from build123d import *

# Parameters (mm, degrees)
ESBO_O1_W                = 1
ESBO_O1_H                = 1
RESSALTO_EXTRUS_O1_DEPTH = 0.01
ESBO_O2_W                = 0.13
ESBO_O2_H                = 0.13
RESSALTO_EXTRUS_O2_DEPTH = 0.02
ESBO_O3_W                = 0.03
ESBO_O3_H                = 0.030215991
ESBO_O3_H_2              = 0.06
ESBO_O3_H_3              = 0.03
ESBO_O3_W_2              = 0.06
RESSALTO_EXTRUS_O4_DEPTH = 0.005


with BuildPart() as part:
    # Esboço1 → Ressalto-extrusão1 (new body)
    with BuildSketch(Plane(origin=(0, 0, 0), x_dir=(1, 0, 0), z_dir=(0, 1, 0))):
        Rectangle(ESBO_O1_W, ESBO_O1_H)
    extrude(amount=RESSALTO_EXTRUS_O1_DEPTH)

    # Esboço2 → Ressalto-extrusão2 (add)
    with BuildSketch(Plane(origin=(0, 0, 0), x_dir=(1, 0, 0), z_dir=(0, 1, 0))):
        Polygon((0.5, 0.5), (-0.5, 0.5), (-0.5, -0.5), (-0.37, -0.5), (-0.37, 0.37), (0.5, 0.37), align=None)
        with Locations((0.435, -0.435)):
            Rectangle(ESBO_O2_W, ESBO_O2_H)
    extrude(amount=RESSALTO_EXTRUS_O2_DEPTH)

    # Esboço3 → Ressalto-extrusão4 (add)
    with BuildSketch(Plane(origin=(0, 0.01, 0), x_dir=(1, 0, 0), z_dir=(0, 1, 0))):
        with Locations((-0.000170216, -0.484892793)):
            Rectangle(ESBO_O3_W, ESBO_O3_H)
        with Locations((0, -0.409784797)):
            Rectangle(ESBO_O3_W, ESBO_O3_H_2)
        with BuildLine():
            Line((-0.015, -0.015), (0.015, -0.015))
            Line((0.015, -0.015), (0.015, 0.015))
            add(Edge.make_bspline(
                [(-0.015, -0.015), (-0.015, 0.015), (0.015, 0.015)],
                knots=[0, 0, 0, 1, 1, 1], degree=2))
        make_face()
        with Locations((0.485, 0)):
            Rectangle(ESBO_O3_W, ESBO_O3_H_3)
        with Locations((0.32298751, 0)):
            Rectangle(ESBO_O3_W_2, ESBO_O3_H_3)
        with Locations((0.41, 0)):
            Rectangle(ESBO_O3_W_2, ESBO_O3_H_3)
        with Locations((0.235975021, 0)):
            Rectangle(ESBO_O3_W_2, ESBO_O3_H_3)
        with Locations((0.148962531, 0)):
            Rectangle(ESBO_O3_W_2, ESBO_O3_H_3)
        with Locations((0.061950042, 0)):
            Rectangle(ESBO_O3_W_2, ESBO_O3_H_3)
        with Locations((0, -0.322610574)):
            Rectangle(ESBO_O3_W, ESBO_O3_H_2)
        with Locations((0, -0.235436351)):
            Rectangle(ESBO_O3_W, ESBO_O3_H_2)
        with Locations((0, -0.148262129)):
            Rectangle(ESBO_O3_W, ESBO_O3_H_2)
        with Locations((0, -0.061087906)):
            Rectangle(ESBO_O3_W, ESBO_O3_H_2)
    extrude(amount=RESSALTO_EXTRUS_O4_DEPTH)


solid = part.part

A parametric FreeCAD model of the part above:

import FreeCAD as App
import Part
import Sketcher

V = App.Vector
Q = App.Units.Quantity


def add_polygon(sketch, points):
    """Adds a closed chain of lines whose ends are joined by coincident constraints."""
    first, n = sketch.GeometryCount, len(points)
    for a, b in zip(points, points[1:] + points[:1]):
        sketch.addGeometry(Part.LineSegment(App.Vector(*a, 0), App.Vector(*b, 0)), False)
    for i in range(n):
        sketch.addConstraint(Sketcher.Constraint("Coincident", first + i, 2, first + (i + 1) % n, 1))

doc = App.newDocument("Part")
body = doc.addObject("PartDesign::Body", "Body")

# Sketch on XZ plane
sketch1 = body.newObject("Sketcher::SketchObject", "Sketch")
sketch1.AttachmentSupport = (doc.getObject("XZ_Plane"), [""])
sketch1.MapMode = "FlatFace"
add_polygon(sketch1, [(-0.5, -0.5), (-0.5, 0.5), (0.5, 0.5), (0.5, -0.5)])  # lines 0-3
sketch1.addConstraint(Sketcher.Constraint("Vertical", 0))
sketch1.addConstraint(Sketcher.Constraint("Horizontal", 1))
sketch1.addConstraint(Sketcher.Constraint("Vertical", 2))
sketch1.addConstraint(Sketcher.Constraint("Horizontal", 3))
sketch1.addConstraint(Sketcher.Constraint("Symmetric", 0, 2, 2, 2, -1, 1))
sketch1.addConstraint(Sketcher.Constraint("Equal", 3, 0))
sketch1.addConstraint(Sketcher.Constraint("DistanceX", 1, 1, 1, 2, Q("1 mm")))
pad1 = body.newObject("PartDesign::Pad", "Pad")
pad1.Profile = sketch1
pad1.Length = 0.01
pad1.Reversed = True

# Sketch on XZ plane
sketch2 = body.newObject("Sketcher::SketchObject", "Sketch001")
sketch2.AttachmentSupport = (doc.getObject("XZ_Plane"), [""])
sketch2.MapMode = "FlatFace"
add_polygon(sketch2, [(0.5, -0.5), (-0.5, -0.5), (-0.5, 0.5), (-0.37, 0.5), (-0.37, -0.37), (0.5, -0.37)])  # lines 0-5
add_polygon(sketch2, [(0.37, 0.37), (0.37, 0.5), (0.5, 0.5), (0.5, 0.37)])  # lines 6-9
sketch2.addConstraint(Sketcher.Constraint("Horizontal", 0))
sketch2.addConstraint(Sketcher.Constraint("Vertical", 1))
sketch2.addConstraint(Sketcher.Constraint("Horizontal", 2))
sketch2.addConstraint(Sketcher.Constraint("Vertical", 3))
sketch2.addConstraint(Sketcher.Constraint("Horizontal", 4))
sketch2.addConstraint(Sketcher.Constraint("Vertical", 5))
sketch2.addConstraint(Sketcher.Constraint("Vertical", 6))
sketch2.addConstraint(Sketcher.Constraint("Horizontal", 7))
sketch2.addConstraint(Sketcher.Constraint("Vertical", 8))
sketch2.addConstraint(Sketcher.Constraint("Horizontal", 9))
sketch2.addConstraint(Sketcher.Constraint("Symmetric", 1, 2, 5, 2, -1, 1))
sketch2.addConstraint(Sketcher.Constraint("Symmetric", 0, 2, 7, 2, -1, 1))
sketch2.addConstraint(Sketcher.Constraint("Symmetric", 3, 2, 9, 2, -1, 1))
sketch2.addConstraint(Sketcher.Constraint("Equal", 0, 1))
sketch2.addConstraint(Sketcher.Constraint("Equal", 4, 3))
sketch2.addConstraint(Sketcher.Constraint("DistanceX", 0, 2, 0, 1, Q("1 mm")))
sketch2.addConstraint(Sketcher.Constraint("DistanceX", 2, 1, 2, 2, Q("0.13 mm")))
pad2 = body.newObject("PartDesign::Pad", "Pad001")
pad2.Profile = sketch2
pad2.Length = 0.02
pad2.Reversed = True

# Sketch on XZ plane
sketch3 = body.newObject("Sketcher::SketchObject", "Sketch002")
sketch3.AttachmentSupport = (doc.getObject("XZ_Plane"), [""])
sketch3.MapMode = "FlatFace"
sketch3.AttachmentOffset = App.Placement(V(0, 0, -0.01), App.Rotation())
add_polygon(sketch3, [(-0.01517, 0.469785), (-0.01517, 0.500001), (0.01483, 0.500001), (0.01483, 0.469785)])  # lines 0-3
add_polygon(sketch3, [(-0.015, 0.379785), (-0.015, 0.439785), (0.015, 0.439785), (0.015, 0.379785)])  # lines 4-7
sketch3.addGeometry(Part.LineSegment(V(-0.015, 0.015, 0), V(0.015, 0.015, 0)), False)  # 8
sketch3.addGeometry(Part.LineSegment(V(0.015, 0.015, 0), V(0.015, -0.015, 0)), False)  # 9
sketch3.addGeometry(Part.BSplineCurve([V(-0.015, 0.015, 0), V(-0.015, -0.015, 0), V(0.015, -0.015, 0)], [3, 3], [0, 1], False, 2, [1, 1, 1], False), False)  # 10
add_polygon(sketch3, [(0.47, -0.015), (0.47, 0.015), (0.5, 0.015), (0.5, -0.015)])  # lines 11-14
add_polygon(sketch3, [(0.292988, -0.015), (0.292988, 0.015), (0.352988, 0.015), (0.352988, -0.015)])  # lines 15-18
add_polygon(sketch3, [(0.38, -0.015), (0.38, 0.015), (0.44, 0.015), (0.44, -0.015)])  # lines 19-22
add_polygon(sketch3, [(0.205975, -0.015), (0.205975, 0.015), (0.265975, 0.015), (0.265975, -0.015)])  # lines 23-26
add_polygon(sketch3, [(0.118963, -0.015), (0.118963, 0.015), (0.178963, 0.015), (0.178963, -0.015)])  # lines 27-30
add_polygon(sketch3, [(0.03195, -0.015), (0.03195, 0.015), (0.09195, 0.015), (0.09195, -0.015)])  # lines 31-34
add_polygon(sketch3, [(-0.015, 0.292611), (-0.015, 0.352611), (0.015, 0.352611), (0.015, 0.292611)])  # lines 35-38
add_polygon(sketch3, [(-0.015, 0.205436), (-0.015, 0.265436), (0.015, 0.265436), (0.015, 0.205436)])  # lines 39-42
add_polygon(sketch3, [(-0.015, 0.118262), (-0.015, 0.178262), (0.015, 0.178262), (0.015, 0.118262)])  # lines 43-46
add_polygon(sketch3, [(-0.015, 0.031088), (-0.015, 0.091088), (0.015, 0.091088), (0.015, 0.031088)])  # lines 47-50
sketch3.addConstraint(Sketcher.Constraint("Block", 10))
sketch3.addConstraint(Sketcher.Constraint("Coincident", 8, 2, 9, 1))
sketch3.addConstraint(Sketcher.Constraint("Coincident", 9, 2, 10, 2))
sketch3.addConstraint(Sketcher.Constraint("Coincident", 10, 1, 8, 1))
sketch3.addConstraint(Sketcher.Constraint("Vertical", 0))
sketch3.addConstraint(Sketcher.Constraint("Horizontal", 1))
sketch3.addConstraint(Sketcher.Constraint("Vertical", 2))
sketch3.addConstraint(Sketcher.Constraint("Horizontal", 3))
sketch3.addConstraint(Sketcher.Constraint("Vertical", 4))
sketch3.addConstraint(Sketcher.Constraint("Horizontal", 5))
sketch3.addConstraint(Sketcher.Constraint("Vertical", 6))
sketch3.addConstraint(Sketcher.Constraint("Horizontal", 7))
sketch3.addConstraint(Sketcher.Constraint("Horizontal", 8))
sketch3.addConstraint(Sketcher.Constraint("Vertical", 9))
sketch3.addConstraint(Sketcher.Constraint("Vertical", 11))
sketch3.addConstraint(Sketcher.Constraint("Horizontal", 12))
sketch3.addConstraint(Sketcher.Constraint("Vertical", 13))
sketch3.addConstraint(Sketcher.Constraint("Horizontal", 14))
sketch3.addConstraint(Sketcher.Constraint("Vertical", 15))
sketch3.addConstraint(Sketcher.Constraint("Horizontal", 16))
sketch3.addConstraint(Sketcher.Constraint("Vertical", 17))
sketch3.addConstraint(Sketcher.Constraint("Horizontal", 18))
sketch3.addConstraint(Sketcher.Constraint("Vertical", 19))
sketch3.addConstraint(Sketcher.Constraint("Horizontal", 20))
sketch3.addConstraint(Sketcher.Constraint("Vertical", 21))
sketch3.addConstraint(Sketcher.Constraint("Horizontal", 22))
sketch3.addConstraint(Sketcher.Constraint("Vertical", 23))
sketch3.addConstraint(Sketcher.Constraint("Horizontal", 24))
sketch3.addConstraint(Sketcher.Constraint("Vertical", 25))
sketch3.addConstraint(Sketcher.Constraint("Horizontal", 26))
sketch3.addConstraint(Sketcher.Constraint("Vertical", 27))
sketch3.addConstraint(Sketcher.Constraint("Horizontal", 28))
sketch3.addConstraint(Sketcher.Constraint("Vertical", 29))
sketch3.addConstraint(Sketcher.Constraint("Horizontal", 30))
sketch3.addConstraint(Sketcher.Constraint("Vertical", 31))
sketch3.addConstraint(Sketcher.Constraint("Horizontal", 32))
sketch3.addConstraint(Sketcher.Constraint("Vertical", 33))
sketch3.addConstraint(Sketcher.Constraint("Horizontal", 34))
sketch3.addConstraint(Sketcher.Constraint("Vertical", 35))
sketch3.addConstraint(Sketcher.Constraint("Horizontal", 36))
sketch3.addConstraint(Sketcher.Constraint("Vertical", 37))
sketch3.addConstraint(Sketcher.Constraint("Horizontal", 38))
sketch3.addConstraint(Sketcher.Constraint("Vertical", 39))
sketch3.addConstraint(Sketcher.Constraint("Horizontal", 40))
sketch3.addConstraint(Sketcher.Constraint("Vertical", 41))
sketch3.addConstraint(Sketcher.Constraint("Horizontal", 42))
sketch3.addConstraint(Sketcher.Constraint("Vertical", 43))
sketch3.addConstraint(Sketcher.Constraint("Horizontal", 44))
sketch3.addConstraint(Sketcher.Constraint("Vertical", 45))
sketch3.addConstraint(Sketcher.Constraint("Horizontal", 46))
sketch3.addConstraint(Sketcher.Constraint("Vertical", 47))
sketch3.addConstraint(Sketcher.Constraint("Horizontal", 48))
sketch3.addConstraint(Sketcher.Constraint("Vertical", 49))
sketch3.addConstraint(Sketcher.Constraint("Horizontal", 50))
sketch3.addConstraint(Sketcher.Constraint("Horizontal", 8, 2, 11, 2))
sketch3.addConstraint(Sketcher.Constraint("Horizontal", 9, 2, 13, 2))
sketch3.addConstraint(Sketcher.Constraint("Horizontal", 12, 2, 15, 2))
sketch3.addConstraint(Sketcher.Constraint("Horizontal", 14, 2, 17, 2))
sketch3.addConstraint(Sketcher.Constraint("Horizontal", 16, 2, 19, 2))
sketch3.addConstraint(Sketcher.Constraint("Horizontal", 18, 2, 21, 2))
sketch3.addConstraint(Sketcher.Constraint("Horizontal", 20, 2, 23, 2))
sketch3.addConstraint(Sketcher.Constraint("Horizontal", 22, 2, 25, 2))
sketch3.addConstraint(Sketcher.Constraint("Horizontal", 24, 2, 27, 2))
sketch3.addConstraint(Sketcher.Constraint("Horizontal", 26, 2, 29, 2))
sketch3.addConstraint(Sketcher.Constraint("Horizontal", 28, 2, 31, 2))
sketch3.addConstraint(Sketcher.Constraint("Horizontal", 30, 2, 33, 2))
sketch3.addConstraint(Sketcher.Constraint("Vertical", 6, 2, 8, 2))
sketch3.addConstraint(Sketcher.Constraint("Vertical", 7, 2, 35, 2))
sketch3.addConstraint(Sketcher.Constraint("Vertical", 9, 2, 36, 2))
sketch3.addConstraint(Sketcher.Constraint("Vertical", 38, 2, 39, 2))
sketch3.addConstraint(Sketcher.Constraint("Vertical", 37, 2, 40, 2))
sketch3.addConstraint(Sketcher.Constraint("Vertical", 42, 2, 43, 2))
sketch3.addConstraint(Sketcher.Constraint("Vertical", 41, 2, 44, 2))
sketch3.addConstraint(Sketcher.Constraint("Vertical", 46, 2, 47, 2))
sketch3.addConstraint(Sketcher.Constraint("Vertical", 45, 2, 48, 2))
sketch3.addConstraint(Sketcher.Constraint("Equal", 3, 5))
sketch3.addConstraint(Sketcher.Constraint("Equal", 7, 8))
sketch3.addConstraint(Sketcher.Constraint("Equal", 8, 12))
sketch3.addConstraint(Sketcher.Constraint("Equal", 18, 20))
sketch3.addConstraint(Sketcher.Constraint("Equal", 22, 24))
sketch3.addConstraint(Sketcher.Constraint("Equal", 26, 28))
sketch3.addConstraint(Sketcher.Constraint("Equal", 30, 32))
sketch3.addConstraint(Sketcher.Constraint("Equal", 34, 4))
sketch3.addConstraint(Sketcher.Constraint("Equal", 6, 35))
sketch3.addConstraint(Sketcher.Constraint("Equal", 37, 39))
sketch3.addConstraint(Sketcher.Constraint("Equal", 41, 43))
sketch3.addConstraint(Sketcher.Constraint("Equal", 45, 47))
sketch3.addConstraint(Sketcher.Constraint("DistanceX", 16, 1, 16, 2, Q("0.06 mm")))
sketch3.addConstraint(Sketcher.Constraint("DistanceY", -1, 1, 0, 2, Q("0.500001 mm")))
sketch3.addConstraint(Sketcher.Constraint("DistanceX", -1, 1, 12, 2, Q("0.5 mm")))
sketch3.addConstraint(Sketcher.Constraint("DistanceX", -1, 1, 19, 2, Q("0.38 mm")))
sketch3.addConstraint(Sketcher.Constraint("DistanceY", 4, 2, 3, 2, Q("0.03 mm")))
sketch3.addConstraint(Sketcher.Constraint("DistanceY", 0, 1, 0, 2, Q("0.030216 mm")))
sketch3.addConstraint(Sketcher.Constraint("DistanceX", 0, 2, -1, 1, Q("0.01517 mm")))
sketch3.addConstraint(Sketcher.Constraint("DistanceX", -1, 1, 31, 2, Q("0.03195 mm")))
sketch3.addConstraint(Sketcher.Constraint("DistanceY", -1, 1, 35, 2, Q("0.352611 mm")))
sketch3.addConstraint(Sketcher.Constraint("DistanceY", 39, 2, 7, 2, Q("0.114348 mm")))
sketch3.addConstraint(Sketcher.Constraint("DistanceY", 43, 2, 38, 2, Q("0.114348 mm")))
sketch3.addConstraint(Sketcher.Constraint("DistanceX", -1, 1, 15, 2, Q("0.292988 mm")))
sketch3.addConstraint(Sketcher.Constraint("DistanceX", -1, 1, 23, 2, Q("0.205975 mm")))
sketch3.addConstraint(Sketcher.Constraint("DistanceX", -1, 1, 27, 2, Q("0.118963 mm")))
sketch3.addConstraint(Sketcher.Constraint("DistanceY", -1, 1, 47, 2, Q("0.091088 mm")))
pad3 = body.newObject("PartDesign::Pad", "Pad002")
pad3.Profile = sketch3
pad3.Length = 0.005
pad3.Reversed = True

doc.recompute()
